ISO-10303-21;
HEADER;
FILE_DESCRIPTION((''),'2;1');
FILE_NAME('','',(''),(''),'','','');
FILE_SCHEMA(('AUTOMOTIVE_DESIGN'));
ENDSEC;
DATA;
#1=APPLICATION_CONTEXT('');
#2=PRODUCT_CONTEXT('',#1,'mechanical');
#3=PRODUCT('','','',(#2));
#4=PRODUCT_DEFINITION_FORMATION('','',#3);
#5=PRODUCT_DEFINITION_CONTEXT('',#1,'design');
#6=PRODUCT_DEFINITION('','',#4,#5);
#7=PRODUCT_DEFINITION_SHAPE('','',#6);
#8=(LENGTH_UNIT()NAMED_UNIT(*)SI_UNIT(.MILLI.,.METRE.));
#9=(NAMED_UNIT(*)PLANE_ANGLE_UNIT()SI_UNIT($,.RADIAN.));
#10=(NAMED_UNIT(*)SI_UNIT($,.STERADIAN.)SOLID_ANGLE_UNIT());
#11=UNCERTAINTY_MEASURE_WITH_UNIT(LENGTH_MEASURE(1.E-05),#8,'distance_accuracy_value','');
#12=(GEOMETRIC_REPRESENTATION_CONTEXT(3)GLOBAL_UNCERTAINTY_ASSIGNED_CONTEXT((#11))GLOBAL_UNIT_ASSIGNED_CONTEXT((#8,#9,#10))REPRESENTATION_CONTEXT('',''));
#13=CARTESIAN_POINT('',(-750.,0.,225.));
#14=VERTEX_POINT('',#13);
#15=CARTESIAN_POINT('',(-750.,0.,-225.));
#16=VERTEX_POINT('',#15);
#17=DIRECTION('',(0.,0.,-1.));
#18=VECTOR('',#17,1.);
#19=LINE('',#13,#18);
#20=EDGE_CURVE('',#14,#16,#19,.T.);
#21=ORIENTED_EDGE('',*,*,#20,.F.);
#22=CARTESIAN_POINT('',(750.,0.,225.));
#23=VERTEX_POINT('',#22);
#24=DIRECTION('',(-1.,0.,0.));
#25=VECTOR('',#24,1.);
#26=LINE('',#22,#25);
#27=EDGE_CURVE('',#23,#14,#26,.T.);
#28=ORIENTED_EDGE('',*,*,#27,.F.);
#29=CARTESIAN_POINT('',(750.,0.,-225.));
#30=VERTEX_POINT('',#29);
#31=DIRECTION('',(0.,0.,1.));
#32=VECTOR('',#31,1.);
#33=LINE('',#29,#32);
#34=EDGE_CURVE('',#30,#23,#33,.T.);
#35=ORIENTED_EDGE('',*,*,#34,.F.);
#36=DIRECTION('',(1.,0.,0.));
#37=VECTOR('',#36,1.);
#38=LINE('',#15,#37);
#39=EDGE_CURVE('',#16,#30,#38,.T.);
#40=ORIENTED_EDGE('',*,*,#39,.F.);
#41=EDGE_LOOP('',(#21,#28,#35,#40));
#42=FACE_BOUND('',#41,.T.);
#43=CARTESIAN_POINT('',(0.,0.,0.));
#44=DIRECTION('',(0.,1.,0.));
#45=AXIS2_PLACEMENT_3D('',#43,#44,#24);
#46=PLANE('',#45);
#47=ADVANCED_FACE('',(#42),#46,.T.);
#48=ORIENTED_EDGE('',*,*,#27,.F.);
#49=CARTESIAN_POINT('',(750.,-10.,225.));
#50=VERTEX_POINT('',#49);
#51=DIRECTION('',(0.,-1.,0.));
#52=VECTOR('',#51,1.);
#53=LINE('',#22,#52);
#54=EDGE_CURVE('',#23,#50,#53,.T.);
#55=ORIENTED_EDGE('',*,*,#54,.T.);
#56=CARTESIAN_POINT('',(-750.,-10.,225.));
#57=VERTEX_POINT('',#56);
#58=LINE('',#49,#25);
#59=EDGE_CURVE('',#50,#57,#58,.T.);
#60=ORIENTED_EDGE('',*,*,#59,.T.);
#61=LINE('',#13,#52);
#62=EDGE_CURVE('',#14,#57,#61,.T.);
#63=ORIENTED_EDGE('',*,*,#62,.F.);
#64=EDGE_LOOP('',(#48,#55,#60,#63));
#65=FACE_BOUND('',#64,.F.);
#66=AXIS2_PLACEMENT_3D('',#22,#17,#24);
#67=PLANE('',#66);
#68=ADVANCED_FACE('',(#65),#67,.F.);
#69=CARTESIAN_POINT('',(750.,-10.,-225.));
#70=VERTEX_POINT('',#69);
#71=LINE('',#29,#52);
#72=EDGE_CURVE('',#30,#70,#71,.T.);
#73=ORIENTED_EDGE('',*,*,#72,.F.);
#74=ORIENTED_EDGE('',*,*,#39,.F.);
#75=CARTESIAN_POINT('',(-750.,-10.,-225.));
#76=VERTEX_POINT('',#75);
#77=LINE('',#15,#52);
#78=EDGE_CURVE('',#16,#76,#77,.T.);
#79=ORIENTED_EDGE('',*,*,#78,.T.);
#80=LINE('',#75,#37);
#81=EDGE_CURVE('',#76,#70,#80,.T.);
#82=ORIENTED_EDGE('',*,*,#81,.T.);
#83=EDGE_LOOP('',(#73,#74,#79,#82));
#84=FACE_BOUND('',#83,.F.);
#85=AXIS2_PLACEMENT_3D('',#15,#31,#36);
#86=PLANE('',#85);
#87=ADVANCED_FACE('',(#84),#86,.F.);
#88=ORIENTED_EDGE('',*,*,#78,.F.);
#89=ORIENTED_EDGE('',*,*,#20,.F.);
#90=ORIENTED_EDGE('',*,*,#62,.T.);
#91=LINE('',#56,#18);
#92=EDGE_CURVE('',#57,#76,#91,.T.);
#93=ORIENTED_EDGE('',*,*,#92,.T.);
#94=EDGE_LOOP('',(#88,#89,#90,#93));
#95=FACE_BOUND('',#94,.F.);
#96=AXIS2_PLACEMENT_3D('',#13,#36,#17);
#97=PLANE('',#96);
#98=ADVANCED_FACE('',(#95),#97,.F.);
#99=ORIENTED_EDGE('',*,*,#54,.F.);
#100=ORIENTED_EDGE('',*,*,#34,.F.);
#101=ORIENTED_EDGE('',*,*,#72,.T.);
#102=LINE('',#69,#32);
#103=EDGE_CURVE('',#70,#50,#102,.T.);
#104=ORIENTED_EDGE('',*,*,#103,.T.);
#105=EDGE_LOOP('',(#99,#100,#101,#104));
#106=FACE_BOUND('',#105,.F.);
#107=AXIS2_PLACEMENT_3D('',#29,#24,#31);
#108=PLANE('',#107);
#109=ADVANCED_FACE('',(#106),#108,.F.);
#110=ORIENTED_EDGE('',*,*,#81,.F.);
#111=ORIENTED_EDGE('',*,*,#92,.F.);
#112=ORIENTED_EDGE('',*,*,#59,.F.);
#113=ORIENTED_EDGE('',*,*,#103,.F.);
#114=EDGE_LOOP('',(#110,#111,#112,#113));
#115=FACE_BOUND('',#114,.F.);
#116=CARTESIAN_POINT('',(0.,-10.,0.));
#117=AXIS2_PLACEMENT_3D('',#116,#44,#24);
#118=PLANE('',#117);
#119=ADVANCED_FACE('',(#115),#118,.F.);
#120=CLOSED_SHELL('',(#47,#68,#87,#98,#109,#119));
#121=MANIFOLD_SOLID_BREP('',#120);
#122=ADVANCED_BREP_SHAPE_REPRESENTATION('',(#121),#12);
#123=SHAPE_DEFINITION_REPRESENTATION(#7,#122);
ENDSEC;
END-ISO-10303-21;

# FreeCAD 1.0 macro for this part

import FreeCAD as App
import Part
import Sketcher


def add_polygon(sketch, points):
    """Adds a closed chain of lines whose ends are joined by coincident constraints."""
    first, n = sketch.GeometryCount, len(points)
    for a, b in zip(points, points[1:] + points[:1]):
        sketch.addGeometry(Part.LineSegment(App.Vector(*a, 0), App.Vector(*b, 0)), False)
    for i in range(n):
        sketch.addConstraint(Sketcher.Constraint("Coincident", first + i, 2, first + (i + 1) % n, 1))

doc = App.newDocument("Part")
body = doc.addObject("PartDesign::Body", "Body")

sketch1 = doc.addObject("Sketcher::SketchObject", "Sketch")
body.addObject(sketch1)
sketch1.AttachmentSupport = (doc.XZ_Plane, [""])
sketch1.MapMode = "FlatFace"
add_polygon(sketch1, [(750, -225), (-750, -225), (-750, 225), (750, 225)])
sketch1.addConstraint(Sketcher.Constraint("Horizontal", 0))
sketch1.addConstraint(Sketcher.Constraint("Vertical", 1))
sketch1.addConstraint(Sketcher.Constraint("Horizontal", 2))
sketch1.addConstraint(Sketcher.Constraint("Vertical", 3))
sketch1.addConstraint(Sketcher.Constraint("Symmetric", 0, 2, 2, 2, -1, 1))
sketch1.addConstraint(Sketcher.Constraint("DistanceX", 0, 2, 0, 1, 1500.0))
sketch1.addConstraint(Sketcher.Constraint("DistanceY", 1, 1, 1, 2, 450.0))
pad1 = doc.addObject("PartDesign::Pad", "Pad")
body.addObject(pad1)
pad1.Profile = sketch1
pad1.Length = 10

doc.recompute()
